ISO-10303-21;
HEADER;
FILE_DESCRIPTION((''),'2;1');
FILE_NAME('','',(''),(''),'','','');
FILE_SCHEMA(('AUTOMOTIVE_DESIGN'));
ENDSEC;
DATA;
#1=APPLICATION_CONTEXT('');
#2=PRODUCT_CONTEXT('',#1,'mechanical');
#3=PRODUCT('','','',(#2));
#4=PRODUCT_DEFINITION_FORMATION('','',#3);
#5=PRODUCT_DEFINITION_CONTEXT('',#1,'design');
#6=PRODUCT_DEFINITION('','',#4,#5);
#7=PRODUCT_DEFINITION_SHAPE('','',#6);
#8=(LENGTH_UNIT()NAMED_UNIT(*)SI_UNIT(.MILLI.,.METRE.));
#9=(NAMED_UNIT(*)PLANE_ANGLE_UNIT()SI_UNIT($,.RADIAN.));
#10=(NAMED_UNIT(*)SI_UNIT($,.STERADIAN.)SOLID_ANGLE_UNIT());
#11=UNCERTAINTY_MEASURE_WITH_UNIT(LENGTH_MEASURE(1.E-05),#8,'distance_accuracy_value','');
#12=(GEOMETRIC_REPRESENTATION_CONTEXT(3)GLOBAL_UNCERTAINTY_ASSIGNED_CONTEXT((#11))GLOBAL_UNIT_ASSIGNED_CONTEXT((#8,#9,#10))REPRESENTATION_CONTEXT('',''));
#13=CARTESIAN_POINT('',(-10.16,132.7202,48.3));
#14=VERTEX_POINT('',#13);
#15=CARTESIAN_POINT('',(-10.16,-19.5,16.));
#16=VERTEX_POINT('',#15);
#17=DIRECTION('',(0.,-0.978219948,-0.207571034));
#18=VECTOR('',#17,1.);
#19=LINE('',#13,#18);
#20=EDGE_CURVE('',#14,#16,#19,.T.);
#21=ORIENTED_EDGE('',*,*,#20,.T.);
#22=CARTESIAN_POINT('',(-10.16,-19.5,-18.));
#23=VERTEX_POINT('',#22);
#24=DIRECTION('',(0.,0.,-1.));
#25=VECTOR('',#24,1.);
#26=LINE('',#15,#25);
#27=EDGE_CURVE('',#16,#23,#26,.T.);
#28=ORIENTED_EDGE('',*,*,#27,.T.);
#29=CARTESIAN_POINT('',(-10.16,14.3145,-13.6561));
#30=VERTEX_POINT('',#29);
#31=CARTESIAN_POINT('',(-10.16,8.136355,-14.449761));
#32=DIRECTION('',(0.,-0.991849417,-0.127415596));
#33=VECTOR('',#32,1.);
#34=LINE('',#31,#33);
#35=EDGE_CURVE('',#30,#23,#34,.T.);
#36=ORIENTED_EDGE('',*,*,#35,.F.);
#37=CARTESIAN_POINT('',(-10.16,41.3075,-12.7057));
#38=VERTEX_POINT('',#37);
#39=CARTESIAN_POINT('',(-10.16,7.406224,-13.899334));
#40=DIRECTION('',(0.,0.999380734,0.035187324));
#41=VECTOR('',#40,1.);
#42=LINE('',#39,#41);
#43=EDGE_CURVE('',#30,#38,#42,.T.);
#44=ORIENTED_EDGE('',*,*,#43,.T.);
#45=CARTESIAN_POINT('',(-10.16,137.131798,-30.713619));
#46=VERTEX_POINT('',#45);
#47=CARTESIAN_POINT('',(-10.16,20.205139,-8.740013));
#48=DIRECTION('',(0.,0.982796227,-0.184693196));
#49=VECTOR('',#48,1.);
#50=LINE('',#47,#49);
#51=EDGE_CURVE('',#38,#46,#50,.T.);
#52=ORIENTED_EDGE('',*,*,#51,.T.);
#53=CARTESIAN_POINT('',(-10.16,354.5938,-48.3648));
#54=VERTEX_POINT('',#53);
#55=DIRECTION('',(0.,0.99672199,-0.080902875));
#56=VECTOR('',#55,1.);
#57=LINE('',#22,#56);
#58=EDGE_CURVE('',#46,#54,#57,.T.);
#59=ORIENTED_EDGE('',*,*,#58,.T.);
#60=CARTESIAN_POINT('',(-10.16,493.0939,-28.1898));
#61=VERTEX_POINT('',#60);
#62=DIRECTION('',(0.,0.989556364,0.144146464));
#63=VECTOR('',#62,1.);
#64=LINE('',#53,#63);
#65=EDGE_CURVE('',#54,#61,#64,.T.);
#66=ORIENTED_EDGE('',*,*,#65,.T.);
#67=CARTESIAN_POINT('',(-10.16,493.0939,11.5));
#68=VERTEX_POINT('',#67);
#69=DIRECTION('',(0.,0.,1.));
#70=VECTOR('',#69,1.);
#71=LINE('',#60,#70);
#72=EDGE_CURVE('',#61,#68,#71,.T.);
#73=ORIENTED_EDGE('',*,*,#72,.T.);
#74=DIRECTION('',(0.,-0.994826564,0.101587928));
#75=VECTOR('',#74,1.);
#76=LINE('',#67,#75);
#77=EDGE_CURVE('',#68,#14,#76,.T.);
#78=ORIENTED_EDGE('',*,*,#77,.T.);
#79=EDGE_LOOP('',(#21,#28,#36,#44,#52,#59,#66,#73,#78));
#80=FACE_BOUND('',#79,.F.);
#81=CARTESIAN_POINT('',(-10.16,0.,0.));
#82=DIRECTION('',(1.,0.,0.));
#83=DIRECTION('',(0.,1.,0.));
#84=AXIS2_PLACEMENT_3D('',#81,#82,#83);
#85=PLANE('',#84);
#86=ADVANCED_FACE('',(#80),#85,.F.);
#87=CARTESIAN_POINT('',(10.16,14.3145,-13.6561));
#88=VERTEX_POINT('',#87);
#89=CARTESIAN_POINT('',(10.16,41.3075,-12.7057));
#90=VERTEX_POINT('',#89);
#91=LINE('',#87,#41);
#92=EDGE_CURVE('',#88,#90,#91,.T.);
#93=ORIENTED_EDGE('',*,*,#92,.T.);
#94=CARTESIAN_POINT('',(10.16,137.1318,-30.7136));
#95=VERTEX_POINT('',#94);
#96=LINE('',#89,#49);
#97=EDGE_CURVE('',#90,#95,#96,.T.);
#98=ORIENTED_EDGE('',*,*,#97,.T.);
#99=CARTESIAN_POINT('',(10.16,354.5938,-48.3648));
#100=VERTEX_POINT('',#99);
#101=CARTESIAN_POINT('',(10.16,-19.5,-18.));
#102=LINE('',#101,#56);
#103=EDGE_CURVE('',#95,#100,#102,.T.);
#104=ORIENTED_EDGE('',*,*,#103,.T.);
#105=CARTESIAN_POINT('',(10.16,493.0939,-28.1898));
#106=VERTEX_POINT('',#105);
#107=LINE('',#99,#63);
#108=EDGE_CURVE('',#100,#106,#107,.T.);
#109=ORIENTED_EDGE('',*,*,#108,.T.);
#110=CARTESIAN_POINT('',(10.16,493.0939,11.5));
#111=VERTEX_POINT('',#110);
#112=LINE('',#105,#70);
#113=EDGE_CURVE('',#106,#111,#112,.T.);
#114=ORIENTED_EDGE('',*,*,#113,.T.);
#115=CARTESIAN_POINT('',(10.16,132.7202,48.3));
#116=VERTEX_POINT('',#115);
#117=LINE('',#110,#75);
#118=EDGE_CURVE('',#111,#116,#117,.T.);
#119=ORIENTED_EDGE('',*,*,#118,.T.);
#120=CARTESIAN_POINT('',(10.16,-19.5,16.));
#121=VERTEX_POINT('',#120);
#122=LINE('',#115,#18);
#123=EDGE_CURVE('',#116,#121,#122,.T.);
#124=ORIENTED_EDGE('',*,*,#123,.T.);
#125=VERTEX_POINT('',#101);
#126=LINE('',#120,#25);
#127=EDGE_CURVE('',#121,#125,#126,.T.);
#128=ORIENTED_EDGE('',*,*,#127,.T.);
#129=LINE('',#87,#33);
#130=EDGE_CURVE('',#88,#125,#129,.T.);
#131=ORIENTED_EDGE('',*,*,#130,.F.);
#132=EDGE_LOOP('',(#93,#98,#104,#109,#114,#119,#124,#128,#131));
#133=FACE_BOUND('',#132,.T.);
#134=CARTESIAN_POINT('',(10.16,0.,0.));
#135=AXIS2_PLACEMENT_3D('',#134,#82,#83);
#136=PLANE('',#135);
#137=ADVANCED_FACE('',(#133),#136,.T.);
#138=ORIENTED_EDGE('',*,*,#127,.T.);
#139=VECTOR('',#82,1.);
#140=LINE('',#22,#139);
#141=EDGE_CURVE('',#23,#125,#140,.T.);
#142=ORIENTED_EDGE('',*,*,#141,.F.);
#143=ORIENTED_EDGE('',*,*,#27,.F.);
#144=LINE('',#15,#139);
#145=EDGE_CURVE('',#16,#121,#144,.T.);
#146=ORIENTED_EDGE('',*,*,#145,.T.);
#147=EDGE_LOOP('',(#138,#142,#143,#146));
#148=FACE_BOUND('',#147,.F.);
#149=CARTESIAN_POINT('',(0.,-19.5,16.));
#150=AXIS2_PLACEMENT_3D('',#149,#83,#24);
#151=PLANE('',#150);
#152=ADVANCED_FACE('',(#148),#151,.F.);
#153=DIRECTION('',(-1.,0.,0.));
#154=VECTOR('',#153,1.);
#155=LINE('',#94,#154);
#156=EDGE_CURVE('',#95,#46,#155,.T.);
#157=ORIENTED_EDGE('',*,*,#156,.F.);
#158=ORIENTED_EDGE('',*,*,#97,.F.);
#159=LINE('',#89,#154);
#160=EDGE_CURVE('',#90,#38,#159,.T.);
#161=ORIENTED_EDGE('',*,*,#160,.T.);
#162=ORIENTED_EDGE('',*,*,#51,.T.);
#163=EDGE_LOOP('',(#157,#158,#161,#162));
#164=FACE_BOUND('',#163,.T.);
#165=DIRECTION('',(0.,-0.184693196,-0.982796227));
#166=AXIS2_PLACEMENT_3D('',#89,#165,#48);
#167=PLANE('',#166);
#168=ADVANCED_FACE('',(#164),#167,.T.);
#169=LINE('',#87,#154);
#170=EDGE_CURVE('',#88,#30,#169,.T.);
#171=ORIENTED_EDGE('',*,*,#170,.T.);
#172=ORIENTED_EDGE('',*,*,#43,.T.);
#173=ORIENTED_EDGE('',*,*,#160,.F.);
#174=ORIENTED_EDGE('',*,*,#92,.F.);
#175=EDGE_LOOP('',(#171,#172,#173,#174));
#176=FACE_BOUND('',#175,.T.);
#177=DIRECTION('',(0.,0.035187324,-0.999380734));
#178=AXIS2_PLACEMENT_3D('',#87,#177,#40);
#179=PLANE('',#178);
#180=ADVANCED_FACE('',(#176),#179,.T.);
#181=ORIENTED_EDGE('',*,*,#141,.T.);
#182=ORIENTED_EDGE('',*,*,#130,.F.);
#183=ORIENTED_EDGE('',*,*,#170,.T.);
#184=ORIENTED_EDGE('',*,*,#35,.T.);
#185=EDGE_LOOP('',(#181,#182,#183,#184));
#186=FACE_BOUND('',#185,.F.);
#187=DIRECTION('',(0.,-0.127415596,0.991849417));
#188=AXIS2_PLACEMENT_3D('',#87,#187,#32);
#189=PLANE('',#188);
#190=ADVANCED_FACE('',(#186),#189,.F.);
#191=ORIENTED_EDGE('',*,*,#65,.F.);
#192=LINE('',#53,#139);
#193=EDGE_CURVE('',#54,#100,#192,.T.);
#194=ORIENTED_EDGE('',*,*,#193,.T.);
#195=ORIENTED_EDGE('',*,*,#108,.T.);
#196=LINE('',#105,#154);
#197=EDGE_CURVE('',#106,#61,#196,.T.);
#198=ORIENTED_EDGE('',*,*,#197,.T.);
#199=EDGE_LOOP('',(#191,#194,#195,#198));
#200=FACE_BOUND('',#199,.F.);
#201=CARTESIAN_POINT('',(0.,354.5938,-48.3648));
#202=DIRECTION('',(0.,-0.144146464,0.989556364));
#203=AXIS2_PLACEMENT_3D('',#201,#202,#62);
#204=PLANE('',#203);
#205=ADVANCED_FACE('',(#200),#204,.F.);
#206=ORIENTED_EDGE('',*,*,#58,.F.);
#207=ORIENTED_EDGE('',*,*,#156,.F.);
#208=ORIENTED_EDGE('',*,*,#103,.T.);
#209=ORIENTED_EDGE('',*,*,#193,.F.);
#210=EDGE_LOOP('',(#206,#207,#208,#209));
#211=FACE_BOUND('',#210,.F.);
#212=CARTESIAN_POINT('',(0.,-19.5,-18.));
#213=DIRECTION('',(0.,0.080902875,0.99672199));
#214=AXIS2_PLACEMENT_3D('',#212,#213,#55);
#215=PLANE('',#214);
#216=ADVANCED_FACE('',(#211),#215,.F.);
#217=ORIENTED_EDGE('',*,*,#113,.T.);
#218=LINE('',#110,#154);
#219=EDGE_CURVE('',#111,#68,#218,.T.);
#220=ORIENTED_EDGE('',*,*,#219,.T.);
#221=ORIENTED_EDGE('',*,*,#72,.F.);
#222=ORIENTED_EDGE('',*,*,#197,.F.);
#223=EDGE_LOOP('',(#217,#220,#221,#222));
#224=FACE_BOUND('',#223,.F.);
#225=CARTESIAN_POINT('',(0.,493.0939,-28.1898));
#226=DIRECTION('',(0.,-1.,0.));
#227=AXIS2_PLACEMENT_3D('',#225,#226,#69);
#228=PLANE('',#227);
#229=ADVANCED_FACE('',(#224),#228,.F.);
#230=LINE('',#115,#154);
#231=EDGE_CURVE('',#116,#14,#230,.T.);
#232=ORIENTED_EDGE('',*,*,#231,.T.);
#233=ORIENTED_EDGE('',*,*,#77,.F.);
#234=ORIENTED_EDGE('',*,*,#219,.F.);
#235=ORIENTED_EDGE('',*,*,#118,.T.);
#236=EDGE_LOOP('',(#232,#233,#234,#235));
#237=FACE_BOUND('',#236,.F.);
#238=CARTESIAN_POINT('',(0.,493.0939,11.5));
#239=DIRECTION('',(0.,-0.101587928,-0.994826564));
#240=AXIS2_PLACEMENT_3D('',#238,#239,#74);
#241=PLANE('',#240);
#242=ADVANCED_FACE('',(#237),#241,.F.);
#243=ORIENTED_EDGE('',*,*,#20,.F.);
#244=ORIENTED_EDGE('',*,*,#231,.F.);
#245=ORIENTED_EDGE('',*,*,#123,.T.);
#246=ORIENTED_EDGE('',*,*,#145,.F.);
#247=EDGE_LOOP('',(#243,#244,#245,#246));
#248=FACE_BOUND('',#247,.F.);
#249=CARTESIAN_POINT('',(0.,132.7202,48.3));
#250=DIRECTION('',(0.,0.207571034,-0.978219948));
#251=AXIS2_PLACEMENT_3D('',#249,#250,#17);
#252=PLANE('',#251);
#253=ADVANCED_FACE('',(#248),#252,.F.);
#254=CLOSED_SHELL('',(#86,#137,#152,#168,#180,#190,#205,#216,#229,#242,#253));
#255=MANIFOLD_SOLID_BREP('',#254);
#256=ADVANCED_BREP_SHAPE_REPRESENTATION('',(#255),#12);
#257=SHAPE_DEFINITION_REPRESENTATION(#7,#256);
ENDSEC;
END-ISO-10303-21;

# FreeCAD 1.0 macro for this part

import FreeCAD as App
import Part
import Sketcher
Q = App.Units.Quantity


def add_polygon(sketch, points):
    """Adds a closed chain of lines whose ends are joined by coincident constraints."""
    first, n = sketch.GeometryCount, len(points)
    for a, b in zip(points, points[1:] + points[:1]):
        sketch.addGeometry(Part.LineSegment(App.Vector(*a, 0), App.Vector(*b, 0)), False)
    for i in range(n):
        sketch.addConstraint(Sketcher.Constraint("Coincident", first + i, 2, first + (i + 1) % n, 1))

doc = App.newDocument("Part")
body = doc.addObject("PartDesign::Body", "Body")

# Sketch on YZ plane
sketch1 = doc.addObject("Sketcher::SketchObject", "Sketch")
body.addObject(sketch1)
sketch1.AttachmentSupport = (doc.YZ_Plane, [""])
sketch1.MapMode = "FlatFace"
add_polygon(sketch1, [(132.7202, 48.3), (-19.5, 16), (-19.5, -18), (354.5938, -48.3648), (493.0939, -28.1898), (493.0939, 11.5)])  # lines 0-5
sketch1.addConstraint([
    Sketcher.Constraint("Vertical", 1),
    Sketcher.Constraint("Vertical", 4),
    Sketcher.Constraint("DistanceY", -1, 1, 0, 2, 16.0),
    Sketcher.Constraint("DistanceY", 1, 2, -1, 1, 18.0),
    Sketcher.Constraint("DistanceX", 0, 2, -1, 1, 19.5),
    Sketcher.Constraint("DistanceY", -1, 1, 4, 2, 11.5),
    Sketcher.Constraint("DistanceY", -1, 1, 5, 2, 48.3),
    Sketcher.Constraint("DistanceY", 4, 1, 4, 2, 39.6898),
    Sketcher.Constraint("Angle", 0, Q("-168.02 deg")),
    Sketcher.Constraint("Angle", 2, Q("-4.6405 deg")),
    Sketcher.Constraint("Angle", 5, Q("174.1694 deg")),
    Sketcher.Constraint("DistanceX", 2, 2, 3, 2, 138.5),
])
pad1 = doc.addObject("PartDesign::Pad", "Pad")
body.addObject(pad1)
pad1.Profile = sketch1
pad1.Length = 20.32
pad1.Midplane = True

# Sketch on YZ plane
sketch2 = doc.addObject("Sketcher::SketchObject", "Sketch001")
body.addObject(sketch2)
sketch2.AttachmentSupport = (doc.YZ_Plane, [""])
sketch2.MapMode = "FlatFace"
sketch2.AttachmentOffset = App.Placement(App.Vector(0, 0, 10.16), App.Rotation())
add_polygon(sketch2, [(14.3145, -13.6561), (-19.5, -18), (137.1318, -30.7136), (41.3075, -12.7057)])  # lines 0-3
sketch2.addConstraint([
    Sketcher.Constraint("DistanceY", 0, 2, -1, 1, 18.0),
    Sketcher.Constraint("DistanceX", 0, 2, -1, 1, 19.5),
    Sketcher.Constraint("Angle", 0, Q("-172.6797 deg")),
    Sketcher.Constraint("Angle", 1, Q("-4.6405 deg")),
    Sketcher.Constraint("Distance", 1, 157.147),
    Sketcher.Constraint("DistanceY", 3, 2, -1, 1, 13.656),
    Sketcher.Constraint("DistanceY", 1, 2, 2, 2, 18.008),
    Sketcher.Constraint("DistanceX", 3, 2, 2, 2, 26.993),
])
pocket1 = doc.addObject("PartDesign::Pocket", "Pocket")
body.addObject(pocket1)
pocket1.Profile = sketch2
pocket1.Type = "ThroughAll"
pocket1.Midplane = True

doc.recompute()
